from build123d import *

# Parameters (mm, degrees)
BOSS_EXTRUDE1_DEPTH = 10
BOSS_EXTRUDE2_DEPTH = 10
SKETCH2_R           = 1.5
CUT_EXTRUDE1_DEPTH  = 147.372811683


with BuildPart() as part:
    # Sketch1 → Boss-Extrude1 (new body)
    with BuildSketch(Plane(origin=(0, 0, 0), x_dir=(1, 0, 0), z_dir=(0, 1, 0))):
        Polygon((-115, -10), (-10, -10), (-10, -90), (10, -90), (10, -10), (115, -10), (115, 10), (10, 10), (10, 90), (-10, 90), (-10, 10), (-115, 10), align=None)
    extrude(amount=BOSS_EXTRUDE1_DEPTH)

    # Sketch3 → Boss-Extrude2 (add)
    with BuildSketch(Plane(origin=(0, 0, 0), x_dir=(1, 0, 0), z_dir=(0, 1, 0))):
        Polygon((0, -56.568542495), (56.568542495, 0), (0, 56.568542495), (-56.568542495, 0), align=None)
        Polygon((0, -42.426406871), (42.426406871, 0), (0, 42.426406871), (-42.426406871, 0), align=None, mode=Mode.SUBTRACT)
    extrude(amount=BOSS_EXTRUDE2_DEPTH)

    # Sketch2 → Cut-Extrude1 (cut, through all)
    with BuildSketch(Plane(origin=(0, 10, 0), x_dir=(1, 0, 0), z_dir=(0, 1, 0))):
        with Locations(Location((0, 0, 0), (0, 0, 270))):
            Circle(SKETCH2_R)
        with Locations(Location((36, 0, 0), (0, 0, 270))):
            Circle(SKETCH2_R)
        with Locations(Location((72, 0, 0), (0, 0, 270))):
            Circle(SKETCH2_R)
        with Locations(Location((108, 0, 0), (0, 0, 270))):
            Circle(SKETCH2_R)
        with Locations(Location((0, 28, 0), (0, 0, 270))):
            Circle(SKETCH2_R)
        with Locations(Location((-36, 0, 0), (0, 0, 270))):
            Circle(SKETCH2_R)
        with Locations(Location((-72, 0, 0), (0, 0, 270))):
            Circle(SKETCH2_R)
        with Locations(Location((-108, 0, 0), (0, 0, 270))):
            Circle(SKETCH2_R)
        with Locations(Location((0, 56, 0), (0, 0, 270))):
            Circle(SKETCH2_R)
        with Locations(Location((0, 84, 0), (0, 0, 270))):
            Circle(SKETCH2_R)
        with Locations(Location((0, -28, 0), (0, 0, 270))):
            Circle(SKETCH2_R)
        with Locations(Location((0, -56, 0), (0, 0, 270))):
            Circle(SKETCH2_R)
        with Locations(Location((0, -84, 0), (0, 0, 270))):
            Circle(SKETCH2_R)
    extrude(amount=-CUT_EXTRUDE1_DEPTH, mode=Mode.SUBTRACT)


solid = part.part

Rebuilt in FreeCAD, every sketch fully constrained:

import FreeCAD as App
import Part
import Sketcher

V = App.Vector
Q = App.Units.Quantity

doc = App.newDocument("Part")
body = doc.addObject("PartDesign::Body", "Body")

sketch1 = body.newObject("Sketcher::SketchObject", "Sketch")
sketch1.AttachmentSupport = (doc.getObject("XZ_Plane"), [""])
sketch1.MapMode = "FlatFace"
sketch1.addGeometry([
    Part.LineSegment(V(-115, 10, 0), V(-10, 10, 0)),
    Part.LineSegment(V(-10, 10, 0), V(-10, 90, 0)),
    Part.LineSegment(V(-10, 90, 0), V(10, 90, 0)),
    Part.LineSegment(V(10, 90, 0), V(10, 10, 0)),
    Part.LineSegment(V(10, 10, 0), V(115, 10, 0)),
    Part.LineSegment(V(115, 10, 0), V(115, -10, 0)),
    Part.LineSegment(V(115, -10, 0), V(10, -10, 0)),
    Part.LineSegment(V(10, -10, 0), V(10, -90, 0)),
    Part.LineSegment(V(10, -90, 0), V(-10, -90, 0)),
    Part.LineSegment(V(-10, -90, 0), V(-10, -10, 0)),
    Part.LineSegment(V(-10, -10, 0), V(-115, -10, 0)),
    Part.LineSegment(V(-115, -10, 0), V(-115, 10, 0)),
], False)
sketch1.addConstraint([
    Sketcher.Constraint("Coincident", 0, 2, 1, 1),
    Sketcher.Constraint("Coincident", 1, 2, 2, 1),
    Sketcher.Constraint("Coincident", 2, 2, 3, 1),
    Sketcher.Constraint("Coincident", 3, 2, 4, 1),
    Sketcher.Constraint("Coincident", 4, 2, 5, 1),
    Sketcher.Constraint("Coincident", 5, 2, 6, 1),
    Sketcher.Constraint("Coincident", 6, 2, 7, 1),
    Sketcher.Constraint("Coincident", 7, 2, 8, 1),
    Sketcher.Constraint("Coincident", 8, 2, 9, 1),
    Sketcher.Constraint("Coincident", 9, 2, 10, 1),
    Sketcher.Constraint("Coincident", 10, 2, 11, 1),
    Sketcher.Constraint("Coincident", 11, 2, 0, 1),
    Sketcher.Constraint("Horizontal", 0),
    Sketcher.Constraint("Vertical", 1),
    Sketcher.Constraint("Horizontal", 2),
    Sketcher.Constraint("Vertical", 3),
    Sketcher.Constraint("Horizontal", 4),
    Sketcher.Constraint("Vertical", 5),
    Sketcher.Constraint("Horizontal", 6),
    Sketcher.Constraint("Vertical", 7),
    Sketcher.Constraint("Horizontal", 8),
    Sketcher.Constraint("Vertical", 9),
    Sketcher.Constraint("Horizontal", 10),
    Sketcher.Constraint("Vertical", 11),
    Sketcher.Constraint("Symmetric", 0, 2, 6, 2, -1, 1),
    Sketcher.Constraint("Symmetric", 2, 2, 8, 2, -1, 1),
    Sketcher.Constraint("Symmetric", 4, 2, 10, 2, -1, 1),
    Sketcher.Constraint("Symmetric", 0, 2, 3, 2, -2),
    Sketcher.Constraint("Equal", 8, 5),
    Sketcher.Constraint("DistanceX", 0, 1, 0, 2, Q("105 mm")),
    Sketcher.Constraint("DistanceX", 2, 1, 2, 2, Q("20 mm")),
    Sketcher.Constraint("DistanceY", 1, 1, 1, 2, Q("80 mm")),
])
pad1 = body.newObject("PartDesign::Pad", "Pad")
pad1.Profile = sketch1
pad1.Length = 10
pad1.Reversed = True

sketch2 = body.newObject("Sketcher::SketchObject", "Sketch001")
sketch2.AttachmentSupport = (doc.getObject("XZ_Plane"), [""])
sketch2.MapMode = "FlatFace"
sketch2.addGeometry([
    Part.LineSegment(V(0, 56.568542, 0), V(56.568542, 0, 0)),
    Part.LineSegment(V(56.568542, 0, 0), V(0, -56.568542, 0)),
    Part.LineSegment(V(0, -56.568542, 0), V(-56.568542, 0, 0)),
    Part.LineSegment(V(-56.568542, 0, 0), V(0, 56.568542, 0)),
    Part.LineSegment(V(42.426407, 0, 0), V(0, 42.426407, 0)),
    Part.LineSegment(V(0, 42.426407, 0), V(-42.426407, 0, 0)),
    Part.LineSegment(V(-42.426407, 0, 0), V(0, -42.426407, 0)),
    Part.LineSegment(V(0, -42.426407, 0), V(42.426407, 0, 0)),
], False)
sketch2.addConstraint([
    Sketcher.Constraint("Coincident", 0, 2, 1, 1),
    Sketcher.Constraint("Coincident", 1, 2, 2, 1),
    Sketcher.Constraint("Coincident", 2, 2, 3, 1),
    Sketcher.Constraint("Coincident", 3, 2, 0, 1),
    Sketcher.Constraint("Coincident", 4, 2, 5, 1),
    Sketcher.Constraint("Coincident", 5, 2, 6, 1),
    Sketcher.Constraint("Coincident", 6, 2, 7, 1),
    Sketcher.Constraint("Coincident", 7, 2, 4, 1),
    Sketcher.Constraint("Symmetric", 0, 2, 2, 2, -1, 1),
    Sketcher.Constraint("Symmetric", 1, 2, 3, 2, -1, 1),
    Sketcher.Constraint("Symmetric", 4, 2, 6, 2, -1, 1),
    Sketcher.Constraint("Symmetric", 5, 2, 7, 2, -1, 1),
    Sketcher.Constraint("PointOnObject", 0, 2, -1),
    Sketcher.Constraint("PointOnObject", 1, 2, -2),
    Sketcher.Constraint("PointOnObject", 4, 2, -2),
    Sketcher.Constraint("PointOnObject", 5, 2, -1),
    Sketcher.Constraint("Perpendicular", 0, 1),
    Sketcher.Constraint("Perpendicular", 3, 4),
    Sketcher.Constraint("Distance", 0, Q("80 mm")),
    Sketcher.Constraint("Distance", 4, Q("60 mm")),
])
pad2 = body.newObject("PartDesign::Pad", "Pad001")
pad2.Profile = sketch2
pad2.Length = 10
pad2.Reversed = True

sketch3 = body.newObject("Sketcher::SketchObject", "Sketch002")
sketch3.AttachmentSupport = (doc.getObject("XZ_Plane"), [""])
sketch3.MapMode = "FlatFace"
sketch3.AttachmentOffset = App.Placement(V(0, 0, -10), App.Rotation())
sketch3.addGeometry([
    Part.Circle(V(0, 0, 0), V(0, 0, 1), 1.5),
    Part.Circle(V(36, 0, 0), V(0, 0, 1), 1.5),
    Part.Circle(V(72, 0, 0), V(0, 0, 1), 1.5),
    Part.Circle(V(108, 0, 0), V(0, 0, 1), 1.5),
    Part.Circle(V(0, -28, 0), V(0, 0, 1), 1.5),
    Part.Circle(V(-36, 0, 0), V(0, 0, 1), 1.5),
    Part.Circle(V(-72, 0, 0), V(0, 0, 1), 1.5),
    Part.Circle(V(-108, 0, 0), V(0, 0, 1), 1.5),
    Part.Circle(V(0, -56, 0), V(0, 0, 1), 1.5),
    Part.Circle(V(0, -84, 0), V(0, 0, 1), 1.5),
    Part.Circle(V(0, 28, 0), V(0, 0, 1), 1.5),
    Part.Circle(V(0, 56, 0), V(0, 0, 1), 1.5),
    Part.Circle(V(0, 84, 0), V(0, 0, 1), 1.5),
], False)
sketch3.addConstraint([
    Sketcher.Constraint("Coincident", 0, 3, -1, 1),
    Sketcher.Constraint("Equal", 0, 1),
    Sketcher.Constraint("Equal", 1, 2),
    Sketcher.Constraint("Equal", 2, 3),
    Sketcher.Constraint("Equal", 3, 4),
    Sketcher.Constraint("Equal", 4, 5),
    Sketcher.Constraint("Equal", 5, 6),
    Sketcher.Constraint("Equal", 6, 7),
    Sketcher.Constraint("Equal", 7, 8),
    Sketcher.Constraint("Equal", 8, 9),
    Sketcher.Constraint("Equal", 9, 10),
    Sketcher.Constraint("Equal", 10, 11),
    Sketcher.Constraint("Equal", 11, 12),
    Sketcher.Constraint("Symmetric", 1, 3, 5, 3, -1, 1),
    Sketcher.Constraint("Symmetric", 2, 3, 6, 3, -1, 1),
    Sketcher.Constraint("Symmetric", 3, 3, 7, 3, -1, 1),
    Sketcher.Constraint("Symmetric", 4, 3, 10, 3, -1, 1),
    Sketcher.Constraint("Symmetric", 8, 3, 11, 3, -1, 1),
    Sketcher.Constraint("Symmetric", 9, 3, 12, 3, -1, 1),
    Sketcher.Constraint("PointOnObject", 1, 3, -1),
    Sketcher.Constraint("PointOnObject", 2, 3, -1),
    Sketcher.Constraint("PointOnObject", 3, 3, -1),
    Sketcher.Constraint("PointOnObject", 4, 3, -2),
    Sketcher.Constraint("PointOnObject", 8, 3, -2),
    Sketcher.Constraint("PointOnObject", 9, 3, -2),
    Sketcher.Constraint("Diameter", 0, Q("3 mm")),
    Sketcher.Constraint("DistanceX", -1, 1, 1, 3, Q("36 mm")),
    Sketcher.Constraint("DistanceX", -1, 1, 2, 3, Q("72 mm")),
    Sketcher.Constraint("DistanceX", -1, 1, 3, 3, Q("108 mm")),
    Sketcher.Constraint("DistanceY", 4, 3, -1, 1, Q("28 mm")),
    Sketcher.Constraint("DistanceY", 8, 3, -1, 1, Q("56 mm")),
    Sketcher.Constraint("DistanceY", 9, 3, -1, 1, Q("84 mm")),
])
pocket1 = body.newObject("PartDesign::Pocket", "Pocket")
pocket1.Profile = sketch3
pocket1.Type = "ThroughAll"
pocket1.Reversed = True

doc.recompute()
